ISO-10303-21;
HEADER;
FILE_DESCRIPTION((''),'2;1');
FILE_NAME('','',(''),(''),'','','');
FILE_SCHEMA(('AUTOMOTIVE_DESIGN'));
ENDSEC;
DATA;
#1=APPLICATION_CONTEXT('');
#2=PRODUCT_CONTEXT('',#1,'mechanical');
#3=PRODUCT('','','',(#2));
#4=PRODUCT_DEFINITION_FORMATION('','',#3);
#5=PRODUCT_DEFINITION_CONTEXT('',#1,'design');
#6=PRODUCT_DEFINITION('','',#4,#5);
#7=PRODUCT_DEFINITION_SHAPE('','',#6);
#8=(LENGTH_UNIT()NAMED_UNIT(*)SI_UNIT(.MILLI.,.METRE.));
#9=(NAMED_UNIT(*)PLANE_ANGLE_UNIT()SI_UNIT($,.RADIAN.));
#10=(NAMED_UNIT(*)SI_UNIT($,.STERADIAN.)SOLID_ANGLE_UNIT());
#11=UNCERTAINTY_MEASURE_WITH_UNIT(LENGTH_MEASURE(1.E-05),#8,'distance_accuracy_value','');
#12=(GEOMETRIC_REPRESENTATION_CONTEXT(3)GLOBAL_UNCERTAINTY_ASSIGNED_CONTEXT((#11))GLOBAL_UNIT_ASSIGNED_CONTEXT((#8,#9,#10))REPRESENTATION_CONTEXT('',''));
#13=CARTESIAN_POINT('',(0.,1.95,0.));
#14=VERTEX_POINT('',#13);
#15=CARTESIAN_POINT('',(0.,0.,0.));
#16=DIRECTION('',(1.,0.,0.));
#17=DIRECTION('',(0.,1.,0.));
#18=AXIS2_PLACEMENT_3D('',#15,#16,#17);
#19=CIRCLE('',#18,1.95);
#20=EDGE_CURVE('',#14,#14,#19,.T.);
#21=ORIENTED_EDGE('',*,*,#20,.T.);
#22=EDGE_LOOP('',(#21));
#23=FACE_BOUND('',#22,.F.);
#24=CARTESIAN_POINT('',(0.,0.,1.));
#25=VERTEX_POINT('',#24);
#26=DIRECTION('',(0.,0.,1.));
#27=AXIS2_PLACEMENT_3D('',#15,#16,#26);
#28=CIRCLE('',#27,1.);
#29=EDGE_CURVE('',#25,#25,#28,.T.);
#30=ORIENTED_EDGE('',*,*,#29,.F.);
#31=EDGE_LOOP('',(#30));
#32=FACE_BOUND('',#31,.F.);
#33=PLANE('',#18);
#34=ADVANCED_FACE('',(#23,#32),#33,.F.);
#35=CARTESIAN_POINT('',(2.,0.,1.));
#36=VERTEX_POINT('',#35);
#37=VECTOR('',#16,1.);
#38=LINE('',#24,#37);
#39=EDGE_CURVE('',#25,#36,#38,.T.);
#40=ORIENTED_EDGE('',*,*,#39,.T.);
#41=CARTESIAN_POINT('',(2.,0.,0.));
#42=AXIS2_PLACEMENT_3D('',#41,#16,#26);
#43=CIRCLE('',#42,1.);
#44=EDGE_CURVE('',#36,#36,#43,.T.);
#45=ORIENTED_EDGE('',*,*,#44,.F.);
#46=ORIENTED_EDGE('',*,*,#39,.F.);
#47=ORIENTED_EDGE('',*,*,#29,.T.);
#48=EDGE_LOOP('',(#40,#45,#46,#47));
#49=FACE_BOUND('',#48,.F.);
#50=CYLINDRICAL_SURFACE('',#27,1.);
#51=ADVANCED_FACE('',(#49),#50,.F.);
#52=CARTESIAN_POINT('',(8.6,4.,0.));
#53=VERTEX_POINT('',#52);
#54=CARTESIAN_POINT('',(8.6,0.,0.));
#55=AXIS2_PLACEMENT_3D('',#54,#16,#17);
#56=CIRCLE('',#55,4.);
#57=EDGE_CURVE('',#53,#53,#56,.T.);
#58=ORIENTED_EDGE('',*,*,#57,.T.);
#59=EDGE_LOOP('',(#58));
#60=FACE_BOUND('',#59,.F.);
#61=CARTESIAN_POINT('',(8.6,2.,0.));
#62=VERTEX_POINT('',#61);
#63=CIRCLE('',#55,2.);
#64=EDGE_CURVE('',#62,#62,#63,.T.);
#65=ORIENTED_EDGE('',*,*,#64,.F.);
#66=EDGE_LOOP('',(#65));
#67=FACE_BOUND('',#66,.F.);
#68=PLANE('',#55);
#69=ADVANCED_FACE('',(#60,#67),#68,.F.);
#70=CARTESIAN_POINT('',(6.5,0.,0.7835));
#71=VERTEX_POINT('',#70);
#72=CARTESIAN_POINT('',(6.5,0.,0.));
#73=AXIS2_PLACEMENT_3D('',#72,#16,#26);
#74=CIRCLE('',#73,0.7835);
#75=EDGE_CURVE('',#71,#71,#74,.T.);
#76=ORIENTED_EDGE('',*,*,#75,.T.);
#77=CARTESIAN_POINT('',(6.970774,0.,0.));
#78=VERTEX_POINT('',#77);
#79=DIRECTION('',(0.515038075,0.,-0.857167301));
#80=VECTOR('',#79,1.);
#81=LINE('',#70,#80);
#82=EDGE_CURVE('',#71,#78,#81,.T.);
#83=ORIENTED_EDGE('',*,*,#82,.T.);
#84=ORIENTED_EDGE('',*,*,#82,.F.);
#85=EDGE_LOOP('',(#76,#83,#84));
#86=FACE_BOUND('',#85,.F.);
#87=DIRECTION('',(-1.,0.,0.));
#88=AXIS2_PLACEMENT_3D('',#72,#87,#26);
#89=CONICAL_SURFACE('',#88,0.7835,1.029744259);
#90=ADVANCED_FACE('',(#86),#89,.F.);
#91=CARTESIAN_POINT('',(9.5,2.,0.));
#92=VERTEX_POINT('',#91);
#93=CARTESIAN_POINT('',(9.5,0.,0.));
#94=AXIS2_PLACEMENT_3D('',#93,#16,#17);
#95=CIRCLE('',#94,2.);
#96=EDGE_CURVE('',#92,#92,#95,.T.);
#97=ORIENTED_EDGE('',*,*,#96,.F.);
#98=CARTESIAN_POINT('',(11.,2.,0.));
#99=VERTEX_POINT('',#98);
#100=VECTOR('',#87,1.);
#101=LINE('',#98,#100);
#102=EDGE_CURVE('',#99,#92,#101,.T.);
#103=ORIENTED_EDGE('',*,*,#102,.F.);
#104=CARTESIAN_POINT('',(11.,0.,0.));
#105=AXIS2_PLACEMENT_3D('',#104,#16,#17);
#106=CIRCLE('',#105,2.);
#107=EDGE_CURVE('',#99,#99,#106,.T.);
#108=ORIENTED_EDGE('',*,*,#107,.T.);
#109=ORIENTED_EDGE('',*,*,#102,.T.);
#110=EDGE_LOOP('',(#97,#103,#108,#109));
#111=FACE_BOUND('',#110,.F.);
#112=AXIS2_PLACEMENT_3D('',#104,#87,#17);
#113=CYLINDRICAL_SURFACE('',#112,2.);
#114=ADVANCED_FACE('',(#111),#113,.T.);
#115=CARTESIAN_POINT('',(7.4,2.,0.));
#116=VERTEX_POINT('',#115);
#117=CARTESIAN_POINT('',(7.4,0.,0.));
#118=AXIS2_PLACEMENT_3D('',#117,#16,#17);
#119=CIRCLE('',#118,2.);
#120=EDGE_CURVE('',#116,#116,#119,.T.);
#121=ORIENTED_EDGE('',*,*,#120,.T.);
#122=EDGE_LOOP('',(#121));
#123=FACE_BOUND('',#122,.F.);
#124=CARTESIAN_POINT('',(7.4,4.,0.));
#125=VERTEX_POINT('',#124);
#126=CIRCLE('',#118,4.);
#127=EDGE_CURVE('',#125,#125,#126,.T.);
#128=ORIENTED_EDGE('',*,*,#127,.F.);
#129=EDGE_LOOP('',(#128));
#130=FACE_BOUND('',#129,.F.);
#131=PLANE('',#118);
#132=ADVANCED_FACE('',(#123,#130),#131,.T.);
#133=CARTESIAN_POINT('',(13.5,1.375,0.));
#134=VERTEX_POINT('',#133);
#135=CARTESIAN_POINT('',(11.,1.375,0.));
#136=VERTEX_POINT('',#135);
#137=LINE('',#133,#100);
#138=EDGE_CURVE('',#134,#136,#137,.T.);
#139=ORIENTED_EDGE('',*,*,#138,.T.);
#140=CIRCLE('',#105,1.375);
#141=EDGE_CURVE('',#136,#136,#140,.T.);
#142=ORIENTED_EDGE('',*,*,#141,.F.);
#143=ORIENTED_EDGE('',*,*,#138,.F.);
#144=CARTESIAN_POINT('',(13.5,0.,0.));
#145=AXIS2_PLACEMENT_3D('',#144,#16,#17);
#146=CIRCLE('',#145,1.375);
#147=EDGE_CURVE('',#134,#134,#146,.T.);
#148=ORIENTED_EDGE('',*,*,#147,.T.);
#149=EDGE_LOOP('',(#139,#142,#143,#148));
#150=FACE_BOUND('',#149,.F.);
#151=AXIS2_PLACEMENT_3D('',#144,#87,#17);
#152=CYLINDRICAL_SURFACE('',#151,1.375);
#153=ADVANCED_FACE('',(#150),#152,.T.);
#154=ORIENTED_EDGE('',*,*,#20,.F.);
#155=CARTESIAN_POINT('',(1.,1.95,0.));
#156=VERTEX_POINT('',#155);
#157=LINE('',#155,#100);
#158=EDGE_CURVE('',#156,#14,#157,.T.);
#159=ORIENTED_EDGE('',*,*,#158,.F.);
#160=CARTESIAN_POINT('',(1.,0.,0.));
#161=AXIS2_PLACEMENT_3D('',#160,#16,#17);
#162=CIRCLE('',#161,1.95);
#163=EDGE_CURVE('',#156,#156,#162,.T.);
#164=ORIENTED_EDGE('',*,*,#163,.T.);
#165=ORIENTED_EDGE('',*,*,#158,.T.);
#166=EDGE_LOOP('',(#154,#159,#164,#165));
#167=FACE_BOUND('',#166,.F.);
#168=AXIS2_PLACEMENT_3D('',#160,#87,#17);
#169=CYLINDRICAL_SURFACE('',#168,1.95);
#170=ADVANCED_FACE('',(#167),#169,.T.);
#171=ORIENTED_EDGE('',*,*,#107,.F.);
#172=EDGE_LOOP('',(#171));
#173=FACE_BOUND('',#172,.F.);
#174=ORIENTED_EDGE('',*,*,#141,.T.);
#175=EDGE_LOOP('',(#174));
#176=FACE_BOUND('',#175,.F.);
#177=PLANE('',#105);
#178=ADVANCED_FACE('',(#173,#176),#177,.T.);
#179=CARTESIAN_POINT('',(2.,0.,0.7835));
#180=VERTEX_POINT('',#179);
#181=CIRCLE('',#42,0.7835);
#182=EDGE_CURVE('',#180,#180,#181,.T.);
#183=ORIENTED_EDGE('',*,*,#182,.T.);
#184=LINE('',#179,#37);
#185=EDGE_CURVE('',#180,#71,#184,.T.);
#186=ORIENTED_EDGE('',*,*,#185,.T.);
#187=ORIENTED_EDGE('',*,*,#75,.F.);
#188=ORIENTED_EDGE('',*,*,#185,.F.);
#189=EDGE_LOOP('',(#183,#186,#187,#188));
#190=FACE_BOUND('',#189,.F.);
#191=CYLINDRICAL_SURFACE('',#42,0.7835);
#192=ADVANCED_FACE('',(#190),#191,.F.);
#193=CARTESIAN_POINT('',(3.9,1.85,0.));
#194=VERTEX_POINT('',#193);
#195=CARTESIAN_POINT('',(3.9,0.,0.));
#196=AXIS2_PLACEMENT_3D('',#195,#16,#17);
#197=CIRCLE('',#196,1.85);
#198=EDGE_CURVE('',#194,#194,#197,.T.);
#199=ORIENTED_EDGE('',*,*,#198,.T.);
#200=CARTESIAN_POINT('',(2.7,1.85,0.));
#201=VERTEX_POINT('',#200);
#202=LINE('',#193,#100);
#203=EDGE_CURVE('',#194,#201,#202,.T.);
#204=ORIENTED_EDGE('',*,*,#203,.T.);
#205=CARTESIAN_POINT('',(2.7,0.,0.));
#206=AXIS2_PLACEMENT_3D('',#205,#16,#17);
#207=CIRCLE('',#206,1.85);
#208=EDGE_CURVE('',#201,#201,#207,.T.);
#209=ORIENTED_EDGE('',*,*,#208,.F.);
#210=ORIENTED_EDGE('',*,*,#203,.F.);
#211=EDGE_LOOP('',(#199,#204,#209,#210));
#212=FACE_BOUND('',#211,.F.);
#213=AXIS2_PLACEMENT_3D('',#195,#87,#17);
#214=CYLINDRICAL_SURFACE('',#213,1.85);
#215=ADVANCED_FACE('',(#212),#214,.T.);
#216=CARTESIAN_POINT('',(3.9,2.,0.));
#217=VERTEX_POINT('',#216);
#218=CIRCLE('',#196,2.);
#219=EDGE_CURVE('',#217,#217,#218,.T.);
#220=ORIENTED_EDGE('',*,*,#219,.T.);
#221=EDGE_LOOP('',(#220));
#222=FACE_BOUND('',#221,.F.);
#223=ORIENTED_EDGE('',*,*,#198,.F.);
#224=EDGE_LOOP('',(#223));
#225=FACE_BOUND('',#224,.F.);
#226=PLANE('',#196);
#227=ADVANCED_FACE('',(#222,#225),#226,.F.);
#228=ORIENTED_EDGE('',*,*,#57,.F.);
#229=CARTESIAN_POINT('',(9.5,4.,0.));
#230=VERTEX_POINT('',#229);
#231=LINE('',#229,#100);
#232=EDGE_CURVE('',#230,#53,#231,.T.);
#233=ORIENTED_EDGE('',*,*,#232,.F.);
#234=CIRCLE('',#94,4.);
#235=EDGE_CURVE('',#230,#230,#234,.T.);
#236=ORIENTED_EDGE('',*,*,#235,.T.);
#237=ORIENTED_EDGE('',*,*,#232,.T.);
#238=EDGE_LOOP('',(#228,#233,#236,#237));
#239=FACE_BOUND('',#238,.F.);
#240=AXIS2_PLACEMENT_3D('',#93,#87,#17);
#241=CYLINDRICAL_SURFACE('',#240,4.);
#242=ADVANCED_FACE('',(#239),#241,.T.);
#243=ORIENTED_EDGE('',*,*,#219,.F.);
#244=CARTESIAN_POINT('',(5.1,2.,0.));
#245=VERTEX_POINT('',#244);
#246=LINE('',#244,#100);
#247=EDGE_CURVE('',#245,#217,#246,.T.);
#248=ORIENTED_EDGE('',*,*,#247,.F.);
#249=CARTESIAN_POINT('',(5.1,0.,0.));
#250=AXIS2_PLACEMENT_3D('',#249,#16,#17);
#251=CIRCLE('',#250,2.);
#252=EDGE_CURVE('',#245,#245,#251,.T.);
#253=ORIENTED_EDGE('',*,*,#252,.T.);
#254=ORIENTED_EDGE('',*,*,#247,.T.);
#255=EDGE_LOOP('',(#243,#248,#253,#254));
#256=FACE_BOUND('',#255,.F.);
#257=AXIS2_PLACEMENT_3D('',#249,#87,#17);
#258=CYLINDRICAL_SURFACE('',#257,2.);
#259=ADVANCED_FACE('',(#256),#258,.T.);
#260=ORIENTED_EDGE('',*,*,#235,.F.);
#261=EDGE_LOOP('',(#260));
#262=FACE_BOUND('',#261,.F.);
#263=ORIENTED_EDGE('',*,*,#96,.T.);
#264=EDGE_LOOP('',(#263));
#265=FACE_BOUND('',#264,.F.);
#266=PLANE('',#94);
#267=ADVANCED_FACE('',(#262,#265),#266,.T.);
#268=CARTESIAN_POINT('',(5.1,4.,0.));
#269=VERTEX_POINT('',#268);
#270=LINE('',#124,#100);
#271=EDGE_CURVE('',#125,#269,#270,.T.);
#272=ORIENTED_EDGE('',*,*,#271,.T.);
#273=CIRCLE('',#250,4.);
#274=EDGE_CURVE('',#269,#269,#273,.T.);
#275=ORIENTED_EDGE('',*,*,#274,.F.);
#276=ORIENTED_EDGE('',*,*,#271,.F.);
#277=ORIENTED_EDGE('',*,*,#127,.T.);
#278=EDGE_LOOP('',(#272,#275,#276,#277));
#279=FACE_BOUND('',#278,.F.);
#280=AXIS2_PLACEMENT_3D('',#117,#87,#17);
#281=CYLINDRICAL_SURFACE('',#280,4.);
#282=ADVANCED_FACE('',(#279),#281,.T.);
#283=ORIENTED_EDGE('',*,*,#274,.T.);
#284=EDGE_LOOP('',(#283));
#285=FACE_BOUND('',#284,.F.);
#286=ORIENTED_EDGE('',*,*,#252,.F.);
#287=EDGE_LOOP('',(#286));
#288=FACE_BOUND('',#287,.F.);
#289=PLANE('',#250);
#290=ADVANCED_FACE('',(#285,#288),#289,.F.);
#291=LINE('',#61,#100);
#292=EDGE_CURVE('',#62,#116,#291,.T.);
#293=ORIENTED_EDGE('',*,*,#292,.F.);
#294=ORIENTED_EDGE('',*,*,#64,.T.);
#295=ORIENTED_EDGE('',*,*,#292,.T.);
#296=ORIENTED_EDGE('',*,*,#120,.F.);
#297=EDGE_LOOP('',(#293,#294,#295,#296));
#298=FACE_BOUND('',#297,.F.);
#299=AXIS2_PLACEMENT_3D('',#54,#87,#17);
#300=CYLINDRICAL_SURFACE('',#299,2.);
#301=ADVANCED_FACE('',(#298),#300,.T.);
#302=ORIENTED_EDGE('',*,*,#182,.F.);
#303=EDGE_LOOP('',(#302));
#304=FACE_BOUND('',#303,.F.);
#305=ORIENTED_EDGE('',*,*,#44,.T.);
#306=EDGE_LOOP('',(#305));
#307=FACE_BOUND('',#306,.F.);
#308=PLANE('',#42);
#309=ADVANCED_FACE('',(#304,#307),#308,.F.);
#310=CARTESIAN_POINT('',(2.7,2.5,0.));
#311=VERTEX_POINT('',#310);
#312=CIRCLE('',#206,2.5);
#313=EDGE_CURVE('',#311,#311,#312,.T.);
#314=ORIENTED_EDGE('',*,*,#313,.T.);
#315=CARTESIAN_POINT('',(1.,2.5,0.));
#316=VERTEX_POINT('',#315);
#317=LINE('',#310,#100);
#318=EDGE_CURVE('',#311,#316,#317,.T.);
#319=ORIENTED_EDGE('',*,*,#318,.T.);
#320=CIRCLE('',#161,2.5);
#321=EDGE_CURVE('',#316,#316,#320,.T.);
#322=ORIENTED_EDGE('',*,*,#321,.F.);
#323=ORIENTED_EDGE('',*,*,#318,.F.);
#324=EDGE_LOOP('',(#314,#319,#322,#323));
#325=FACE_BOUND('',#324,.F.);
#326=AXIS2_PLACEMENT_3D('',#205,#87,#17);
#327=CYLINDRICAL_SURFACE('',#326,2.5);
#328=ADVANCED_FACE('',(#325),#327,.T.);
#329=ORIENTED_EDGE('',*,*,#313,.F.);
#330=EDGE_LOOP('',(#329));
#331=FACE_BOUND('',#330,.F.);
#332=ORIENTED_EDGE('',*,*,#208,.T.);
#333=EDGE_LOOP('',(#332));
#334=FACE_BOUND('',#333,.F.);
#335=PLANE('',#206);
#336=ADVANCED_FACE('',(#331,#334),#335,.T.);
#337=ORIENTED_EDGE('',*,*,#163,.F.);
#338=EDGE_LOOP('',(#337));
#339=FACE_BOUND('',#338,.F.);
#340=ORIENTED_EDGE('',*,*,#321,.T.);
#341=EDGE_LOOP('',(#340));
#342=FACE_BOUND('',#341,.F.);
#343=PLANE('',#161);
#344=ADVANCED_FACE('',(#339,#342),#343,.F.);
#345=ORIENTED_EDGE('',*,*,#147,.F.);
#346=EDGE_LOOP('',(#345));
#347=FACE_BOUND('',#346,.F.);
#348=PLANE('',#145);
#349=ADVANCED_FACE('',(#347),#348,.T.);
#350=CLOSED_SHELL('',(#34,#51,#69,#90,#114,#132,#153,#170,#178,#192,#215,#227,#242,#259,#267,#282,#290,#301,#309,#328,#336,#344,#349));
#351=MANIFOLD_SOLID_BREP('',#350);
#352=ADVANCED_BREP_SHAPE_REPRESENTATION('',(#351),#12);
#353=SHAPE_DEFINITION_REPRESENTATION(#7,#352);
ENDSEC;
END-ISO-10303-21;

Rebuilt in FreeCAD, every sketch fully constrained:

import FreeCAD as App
import Part
import Sketcher

doc = App.newDocument("Part")
body = doc.addObject("PartDesign::Body", "Body")

# Sketch on XY plane
sketch1 = body.newObject("Sketcher::SketchObject", "Sketch")
sketch1.AttachmentSupport = (doc.getObject("XY_Plane"), [""])
sketch1.MapMode = "FlatFace"
sketch1.addGeometry(Part.LineSegment(App.Vector(0, 1.95, 0), App.Vector(0, 0, 0)), False)
sketch1.addGeometry(Part.LineSegment(App.Vector(0, 0, 0), App.Vector(13.5, 0, 0)), False)
sketch1.addGeometry(Part.LineSegment(App.Vector(13.5, 0, 0), App.Vector(13.5, 1.38, 0)), False)
sketch1.addGeometry(Part.LineSegment(App.Vector(13.5, 1.38, 0), App.Vector(11, 1.38, 0)), False)
sketch1.addGeometry(Part.LineSegment(App.Vector(11, 1.38, 0), App.Vector(11, 2, 0)), False)
sketch1.addGeometry(Part.LineSegment(App.Vector(11, 2, 0), App.Vector(9.5, 2, 0)), False)
sketch1.addGeometry(Part.LineSegment(App.Vector(9.5, 2, 0), App.Vector(9.5, 4, 0)), False)
sketch1.addGeometry(Part.LineSegment(App.Vector(9.5, 4, 0), App.Vector(8.6, 4, 0)), False)
sketch1.addGeometry(Part.LineSegment(App.Vector(8.6, 4, 0), App.Vector(8.6, 2, 0)), False)
sketch1.addGeometry(Part.LineSegment(App.Vector(8.6, 2, 0), App.Vector(7.4, 2, 0)), False)
sketch1.addGeometry(Part.LineSegment(App.Vector(7.4, 2, 0), App.Vector(7.4, 4, 0)), False)
sketch1.addGeometry(Part.LineSegment(App.Vector(7.4, 4, 0), App.Vector(5.1, 4, 0)), False)
sketch1.addGeometry(Part.LineSegment(App.Vector(5.1, 4, 0), App.Vector(5.1, 2, 0)), False)
sketch1.addGeometry(Part.LineSegment(App.Vector(5.1, 2, 0), App.Vector(3.9, 2, 0)), False)
sketch1.addGeometry(Part.LineSegment(App.Vector(3.9, 2, 0), App.Vector(3.9, 1.85, 0)), False)
sketch1.addGeometry(Part.LineSegment(App.Vector(3.9, 1.85, 0), App.Vector(2.7, 1.85, 0)), False)
sketch1.addGeometry(Part.LineSegment(App.Vector(2.7, 1.85, 0), App.Vector(2.7, 2.5, 0)), False)
sketch1.addGeometry(Part.LineSegment(App.Vector(2.7, 2.5, 0), App.Vector(1, 2.5, 0)), False)
sketch1.addGeometry(Part.LineSegment(App.Vector(1, 2.5, 0), App.Vector(1, 1.95, 0)), False)
sketch1.addGeometry(Part.LineSegment(App.Vector(1, 1.95, 0), App.Vector(0, 1.95, 0)), False)
sketch1.addConstraint(Sketcher.Constraint("Coincident", 0, 2, 1, 1))
sketch1.addConstraint(Sketcher.Constraint("Coincident", 1, 2, 2, 1))
sketch1.addConstraint(Sketcher.Constraint("Coincident", 2, 2, 3, 1))
sketch1.addConstraint(Sketcher.Constraint("Coincident", 3, 2, 4, 1))
sketch1.addConstraint(Sketcher.Constraint("Coincident", 4, 2, 5, 1))
sketch1.addConstraint(Sketcher.Constraint("Coincident", 5, 2, 6, 1))
sketch1.addConstraint(Sketcher.Constraint("Coincident", 6, 2, 7, 1))
sketch1.addConstraint(Sketcher.Constraint("Coincident", 7, 2, 8, 1))
sketch1.addConstraint(Sketcher.Constraint("Coincident", 8, 2, 9, 1))
sketch1.addConstraint(Sketcher.Constraint("Coincident", 9, 2, 10, 1))
sketch1.addConstraint(Sketcher.Constraint("Coincident", 10, 2, 11, 1))
sketch1.addConstraint(Sketcher.Constraint("Coincident", 11, 2, 12, 1))
sketch1.addConstraint(Sketcher.Constraint("Coincident", 12, 2, 13, 1))
sketch1.addConstraint(Sketcher.Constraint("Coincident", 13, 2, 14, 1))
sketch1.addConstraint(Sketcher.Constraint("Coincident", 14, 2, 15, 1))
sketch1.addConstraint(Sketcher.Constraint("Coincident", 15, 2, 16, 1))
sketch1.addConstraint(Sketcher.Constraint("Coincident", 16, 2, 17, 1))
sketch1.addConstraint(Sketcher.Constraint("Coincident", 17, 2, 18, 1))
sketch1.addConstraint(Sketcher.Constraint("Coincident", 18, 2, 19, 1))
sketch1.addConstraint(Sketcher.Constraint("Coincident", 19, 2, 0, 1))
sketch1.addConstraint(Sketcher.Constraint("Vertical", 0))
sketch1.addConstraint(Sketcher.Constraint("Horizontal", 1))
sketch1.addConstraint(Sketcher.Constraint("Vertical", 2))
sketch1.addConstraint(Sketcher.Constraint("Horizontal", 3))
sketch1.addConstraint(Sketcher.Constraint("Vertical", 4))
sketch1.addConstraint(Sketcher.Constraint("Horizontal", 5))
sketch1.addConstraint(Sketcher.Constraint("Vertical", 6))
sketch1.addConstraint(Sketcher.Constraint("Horizontal", 7))
sketch1.addConstraint(Sketcher.Constraint("Vertical", 8))
sketch1.addConstraint(Sketcher.Constraint("Horizontal", 9))
sketch1.addConstraint(Sketcher.Constraint("Vertical", 10))
sketch1.addConstraint(Sketcher.Constraint("Horizontal", 11))
sketch1.addConstraint(Sketcher.Constraint("Vertical", 12))
sketch1.addConstraint(Sketcher.Constraint("Horizontal", 13))
sketch1.addConstraint(Sketcher.Constraint("Vertical", 14))
sketch1.addConstraint(Sketcher.Constraint("Horizontal", 15))
sketch1.addConstraint(Sketcher.Constraint("Vertical", 16))
sketch1.addConstraint(Sketcher.Constraint("Horizontal", 17))
sketch1.addConstraint(Sketcher.Constraint("Vertical", 18))
sketch1.addConstraint(Sketcher.Constraint("Horizontal", 19))
sketch1.addConstraint(Sketcher.Constraint("Coincident", 0, 2, -1, 1))
sketch1.addConstraint(Sketcher.Constraint("Horizontal", 5, 2, 8, 2))
sketch1.addConstraint(Sketcher.Constraint("Horizontal", 7, 2, 10, 2))
sketch1.addConstraint(Sketcher.Constraint("Horizontal", 9, 2, 12, 2))
sketch1.addConstraint(Sketcher.Constraint("Equal", 9, 13))
sketch1.addConstraint(Sketcher.Constraint("Equal", 13, 15))
sketch1.addConstraint(Sketcher.Constraint("DistanceX", 19, 2, 19, 1, 1.0))
sketch1.addConstraint(Sketcher.Constraint("DistanceX", 1, 1, 1, 2, 13.5))
sketch1.addConstraint(Sketcher.Constraint("DistanceX", -1, 1, 3, 2, 11.0))
sketch1.addConstraint(Sketcher.Constraint("DistanceY", -1, 1, 6, 2, 4.0))
sketch1.addConstraint(Sketcher.Constraint("DistanceX", 5, 2, 2, 2, 4.0))
sketch1.addConstraint(Sketcher.Constraint("DistanceX", -1, 1, 7, 2, 8.6))
sketch1.addConstraint(Sketcher.Constraint("DistanceX", -1, 1, 9, 2, 7.4))
sketch1.addConstraint(Sketcher.Constraint("DistanceX", -1, 1, 11, 2, 5.1))
sketch1.addConstraint(Sketcher.Constraint("DistanceY", 6, 1, 6, 2, 2.0))
sketch1.addConstraint(Sketcher.Constraint("DistanceY", 0, 2, 0, 1, 1.95))
sketch1.addConstraint(Sketcher.Constraint("DistanceY", 14, 2, 14, 1, 0.15))
sketch1.addConstraint(Sketcher.Constraint("DistanceY", 16, 1, 16, 2, 0.65))
sketch1.addConstraint(Sketcher.Constraint("DistanceY", 2, 1, 2, 2, 1.375))
revolution = body.newObject("PartDesign::Revolution", "Revolution")
revolution.Profile = sketch1
revolution.ReferenceAxis = (sketch1, ["H_Axis"])
revolution.Angle = 360

# Sketch on YZ plane
sketch2 = body.newObject("Sketcher::SketchObject", "Sketch001")
sketch2.AttachmentSupport = (doc.getObject("YZ_Plane"), [""])
sketch2.MapMode = "FlatFace"
sketch2.addGeometry(Part.Circle(App.Vector(0, 0, 0), App.Vector(0, 0, 1), 0.8), False)
sketch2.addConstraint(Sketcher.Constraint("Coincident", 0, 3, -1, 1))
sketch2.addConstraint(Sketcher.Constraint("Diameter", 0, 1.567))
doc.recompute()
hole = body.newObject("PartDesign::Hole", "Hole")
hole.Profile = sketch2
hole.ThreadType = "None"
hole.Diameter = 1.567
hole.DepthType = "Dimension"
hole.Depth = 6.5
hole.DrillPoint = "Angled"
hole.DrillPointAngle = 118
hole.HoleCutType = "Counterbore"
hole.HoleCutDiameter = 2
hole.HoleCutDepth = 2
hole.Reversed = True

doc.recompute()
